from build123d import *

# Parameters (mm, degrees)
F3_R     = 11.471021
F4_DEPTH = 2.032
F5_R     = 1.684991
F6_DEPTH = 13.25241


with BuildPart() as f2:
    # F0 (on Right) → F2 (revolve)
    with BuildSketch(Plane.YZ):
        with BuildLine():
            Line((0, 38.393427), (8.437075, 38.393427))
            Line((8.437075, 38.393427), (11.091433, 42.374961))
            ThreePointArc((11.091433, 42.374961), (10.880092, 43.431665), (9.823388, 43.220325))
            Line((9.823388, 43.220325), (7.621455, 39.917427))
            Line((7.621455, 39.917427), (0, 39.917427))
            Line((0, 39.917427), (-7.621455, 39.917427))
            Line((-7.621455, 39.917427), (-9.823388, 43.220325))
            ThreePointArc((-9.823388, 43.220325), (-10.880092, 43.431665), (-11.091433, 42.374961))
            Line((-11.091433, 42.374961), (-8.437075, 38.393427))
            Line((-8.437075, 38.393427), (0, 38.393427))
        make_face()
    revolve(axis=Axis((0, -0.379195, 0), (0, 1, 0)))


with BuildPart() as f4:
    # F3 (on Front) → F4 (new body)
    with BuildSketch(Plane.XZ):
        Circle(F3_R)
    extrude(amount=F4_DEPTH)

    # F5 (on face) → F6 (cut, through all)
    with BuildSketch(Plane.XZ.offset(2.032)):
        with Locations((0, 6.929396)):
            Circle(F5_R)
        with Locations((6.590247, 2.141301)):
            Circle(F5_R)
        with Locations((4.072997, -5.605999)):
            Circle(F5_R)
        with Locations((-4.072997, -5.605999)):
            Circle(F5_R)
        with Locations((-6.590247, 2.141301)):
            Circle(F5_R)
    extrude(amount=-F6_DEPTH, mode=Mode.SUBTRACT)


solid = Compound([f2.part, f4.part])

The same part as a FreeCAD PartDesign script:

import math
import FreeCAD as App
import Part
import Sketcher

V = App.Vector
Q = App.Units.Quantity

doc = App.newDocument("Part")
params = doc.addObject("Spreadsheet::Sheet", "Params")
for row, (alias, value) in enumerate([
    ("sketch1_radius", "0.03 in"),
    ("revolution_angle", "360 deg"),
    ("pad1_length", "0.08 in"),
], start=1):
    params.set(f"A{row}", alias)
    params.set(f"B{row}", "=" + value)
    params.setAlias(f"B{row}", alias)

body = doc.addObject("PartDesign::Body", "Body")

# Sketch on YZ plane
sketch1 = body.newObject("Sketcher::SketchObject", "Sketch")
sketch1.AttachmentSupport = (doc.getObject("YZ_Plane"), [""])
sketch1.MapMode = "FlatFace"
sketch1.addGeometry(Part.LineSegment(V(8.4, 38.4, 0), V(11.1, 42.4, 0)), False)
sketch1.addGeometry(Part.ArcOfCircle(Part.Circle(V(10.5, 42.8, 0), V(0, 0, 1), 0.8), math.radians(-34), math.radians(146)), False)
sketch1.addGeometry(Part.LineSegment(V(9.8, 43.2, 0), V(7.6, 39.9, 0)), False)
sketch1.addGeometry(Part.LineSegment(V(7.6, 39.9, 0), V(-7.6, 39.9, 0)), False)
sketch1.addGeometry(Part.LineSegment(V(-7.6, 39.9, 0), V(-9.8, 43.2, 0)), False)
sketch1.addGeometry(Part.ArcOfCircle(Part.Circle(V(-10.5, 42.8, 0), V(0, 0, 1), 0.8), math.radians(34), math.radians(214)), False)
sketch1.addGeometry(Part.LineSegment(V(-11.1, 42.4, 0), V(-8.4, 38.4, 0)), False)
sketch1.addGeometry(Part.LineSegment(V(-8.4, 38.4, 0), V(8.4, 38.4, 0)), False)
sketch1.addConstraint(Sketcher.Constraint("Tangent", 0, 2, 1, 1))
sketch1.addConstraint(Sketcher.Constraint("Tangent", 1, 2, 2, 1))
sketch1.addConstraint(Sketcher.Constraint("Coincident", 2, 2, 3, 1))
sketch1.addConstraint(Sketcher.Constraint("Coincident", 3, 2, 4, 1))
sketch1.addConstraint(Sketcher.Constraint("Tangent", 4, 2, 5, 1))
sketch1.addConstraint(Sketcher.Constraint("Tangent", 5, 2, 6, 1))
sketch1.addConstraint(Sketcher.Constraint("Coincident", 6, 2, 7, 1))
sketch1.addConstraint(Sketcher.Constraint("Coincident", 7, 2, 0, 1))
sketch1.addConstraint(Sketcher.Constraint("Horizontal", 3))
sketch1.addConstraint(Sketcher.Constraint("Horizontal", 7))
sketch1.addConstraint(Sketcher.Constraint("Equal", 1, 5))
sketch1.addConstraint(Sketcher.Constraint("Symmetric", 1, 3, 5, 3, -2))
sketch1.addConstraint(Sketcher.Constraint("Parallel", 0, 2))
sketch1.addConstraint(Sketcher.Constraint("Parallel", 4, 6))
sketch1.addConstraint(Sketcher.Constraint("Horizontal", 1, 2, 4, 2))
sketch1.addConstraint(Sketcher.Constraint("Radius", 1, Q("0.03 in")))
sketch1.addConstraint(Sketcher.Constraint("DistanceY", 6, 2, 3, 2, Q("0.06 in")))
sketch1.addConstraint(Sketcher.Constraint("DistanceX", 3, 2, 3, 1, Q("15.24291 mm")))
sketch1.addConstraint(Sketcher.Constraint("DistanceX", 7, 1, 7, 2, Q("16.87415 mm")))
sketch1.addConstraint(Sketcher.Constraint("DistanceX", 5, 3, 1, 2, Q("20.280798 mm")))
sketch1.addConstraint(Sketcher.Constraint("DistanceY", -1, 1, 0, 2, Q("42.374961 mm")))
sketch1.setExpression("Constraints[15]", "Params.sketch1_radius")
revolution = body.newObject("PartDesign::Revolution", "Revolution")
revolution.Profile = sketch1
revolution.ReferenceAxis = (sketch1, ["H_Axis"])
revolution.setExpression("Angle", "Params.revolution_angle")
body2 = doc.addObject("PartDesign::Body", "Body001")

# Sketch on XZ plane
sketch2 = body2.newObject("Sketcher::SketchObject", "Sketch001")
sketch2.AttachmentSupport = (doc.getObject("XZ_Plane001"), [""])
sketch2.MapMode = "FlatFace"
sketch2.addGeometry(Part.Circle(V(0, 0, 0), V(0, 0, 1), 11), False)
sketch2.addConstraint(Sketcher.Constraint("Coincident", 0, 3, -1, 1))
sketch2.addConstraint(Sketcher.Constraint("Diameter", 0, Q("22.942042 mm")))
pad1 = body2.newObject("PartDesign::Pad", "Pad")
pad1.Profile = sketch2
pad1.setExpression("Length", "Params.pad1_length")

# Sketch on XZ plane
sketch3 = body2.newObject("Sketcher::SketchObject", "Sketch002")
sketch3.AttachmentSupport = (doc.getObject("XZ_Plane001"), [""])
sketch3.MapMode = "FlatFace"
sketch3.AttachmentOffset = App.Placement(V(0, 0, 0.08 * 25.4), App.Rotation())
sketch3.addGeometry(Part.Circle(V(0, 6.9, 0), V(0, 0, 1), 1.7), False)
sketch3.addGeometry(Part.Circle(V(6.6, 2.1, 0), V(0, 0, 1), 1.7), False)
sketch3.addGeometry(Part.Circle(V(4.1, -5.6, 0), V(0, 0, 1), 1.7), False)
sketch3.addGeometry(Part.Circle(V(-4.1, -5.6, 0), V(0, 0, 1), 1.7), False)
sketch3.addGeometry(Part.Circle(V(-6.6, 2.1, 0), V(0, 0, 1), 1.7), False)
sketch3.addConstraint(Sketcher.Constraint("Equal", 0, 1))
sketch3.addConstraint(Sketcher.Constraint("Equal", 1, 2))
sketch3.addConstraint(Sketcher.Constraint("Equal", 2, 3))
sketch3.addConstraint(Sketcher.Constraint("Equal", 3, 4))
sketch3.addConstraint(Sketcher.Constraint("Symmetric", 2, 3, 3, 3, -2))
sketch3.addConstraint(Sketcher.Constraint("Symmetric", 1, 3, 4, 3, -2))
sketch3.addConstraint(Sketcher.Constraint("PointOnObject", 0, 3, -2))
sketch3.addConstraint(Sketcher.Constraint("Diameter", 0, Q("3.369982 mm")))
sketch3.addConstraint(Sketcher.Constraint("DistanceY", -1, 1, 1, 3, Q("2.141301 mm")))
sketch3.addConstraint(Sketcher.Constraint("DistanceY", 2, 3, -1, 1, Q("5.605999 mm")))
sketch3.addConstraint(Sketcher.Constraint("DistanceX", 2, 3, 1, 3, Q("2.51725 mm")))
sketch3.addConstraint(Sketcher.Constraint("DistanceY", -1, 1, 0, 3, Q("6.929396 mm")))
sketch3.addConstraint(Sketcher.Constraint("DistanceX", -1, 1, 1, 3, Q("6.590247 mm")))
pocket1 = body2.newObject("PartDesign::Pocket", "Pocket")
pocket1.Profile = sketch3
pocket1.Type = "ThroughAll"

doc.recompute()
